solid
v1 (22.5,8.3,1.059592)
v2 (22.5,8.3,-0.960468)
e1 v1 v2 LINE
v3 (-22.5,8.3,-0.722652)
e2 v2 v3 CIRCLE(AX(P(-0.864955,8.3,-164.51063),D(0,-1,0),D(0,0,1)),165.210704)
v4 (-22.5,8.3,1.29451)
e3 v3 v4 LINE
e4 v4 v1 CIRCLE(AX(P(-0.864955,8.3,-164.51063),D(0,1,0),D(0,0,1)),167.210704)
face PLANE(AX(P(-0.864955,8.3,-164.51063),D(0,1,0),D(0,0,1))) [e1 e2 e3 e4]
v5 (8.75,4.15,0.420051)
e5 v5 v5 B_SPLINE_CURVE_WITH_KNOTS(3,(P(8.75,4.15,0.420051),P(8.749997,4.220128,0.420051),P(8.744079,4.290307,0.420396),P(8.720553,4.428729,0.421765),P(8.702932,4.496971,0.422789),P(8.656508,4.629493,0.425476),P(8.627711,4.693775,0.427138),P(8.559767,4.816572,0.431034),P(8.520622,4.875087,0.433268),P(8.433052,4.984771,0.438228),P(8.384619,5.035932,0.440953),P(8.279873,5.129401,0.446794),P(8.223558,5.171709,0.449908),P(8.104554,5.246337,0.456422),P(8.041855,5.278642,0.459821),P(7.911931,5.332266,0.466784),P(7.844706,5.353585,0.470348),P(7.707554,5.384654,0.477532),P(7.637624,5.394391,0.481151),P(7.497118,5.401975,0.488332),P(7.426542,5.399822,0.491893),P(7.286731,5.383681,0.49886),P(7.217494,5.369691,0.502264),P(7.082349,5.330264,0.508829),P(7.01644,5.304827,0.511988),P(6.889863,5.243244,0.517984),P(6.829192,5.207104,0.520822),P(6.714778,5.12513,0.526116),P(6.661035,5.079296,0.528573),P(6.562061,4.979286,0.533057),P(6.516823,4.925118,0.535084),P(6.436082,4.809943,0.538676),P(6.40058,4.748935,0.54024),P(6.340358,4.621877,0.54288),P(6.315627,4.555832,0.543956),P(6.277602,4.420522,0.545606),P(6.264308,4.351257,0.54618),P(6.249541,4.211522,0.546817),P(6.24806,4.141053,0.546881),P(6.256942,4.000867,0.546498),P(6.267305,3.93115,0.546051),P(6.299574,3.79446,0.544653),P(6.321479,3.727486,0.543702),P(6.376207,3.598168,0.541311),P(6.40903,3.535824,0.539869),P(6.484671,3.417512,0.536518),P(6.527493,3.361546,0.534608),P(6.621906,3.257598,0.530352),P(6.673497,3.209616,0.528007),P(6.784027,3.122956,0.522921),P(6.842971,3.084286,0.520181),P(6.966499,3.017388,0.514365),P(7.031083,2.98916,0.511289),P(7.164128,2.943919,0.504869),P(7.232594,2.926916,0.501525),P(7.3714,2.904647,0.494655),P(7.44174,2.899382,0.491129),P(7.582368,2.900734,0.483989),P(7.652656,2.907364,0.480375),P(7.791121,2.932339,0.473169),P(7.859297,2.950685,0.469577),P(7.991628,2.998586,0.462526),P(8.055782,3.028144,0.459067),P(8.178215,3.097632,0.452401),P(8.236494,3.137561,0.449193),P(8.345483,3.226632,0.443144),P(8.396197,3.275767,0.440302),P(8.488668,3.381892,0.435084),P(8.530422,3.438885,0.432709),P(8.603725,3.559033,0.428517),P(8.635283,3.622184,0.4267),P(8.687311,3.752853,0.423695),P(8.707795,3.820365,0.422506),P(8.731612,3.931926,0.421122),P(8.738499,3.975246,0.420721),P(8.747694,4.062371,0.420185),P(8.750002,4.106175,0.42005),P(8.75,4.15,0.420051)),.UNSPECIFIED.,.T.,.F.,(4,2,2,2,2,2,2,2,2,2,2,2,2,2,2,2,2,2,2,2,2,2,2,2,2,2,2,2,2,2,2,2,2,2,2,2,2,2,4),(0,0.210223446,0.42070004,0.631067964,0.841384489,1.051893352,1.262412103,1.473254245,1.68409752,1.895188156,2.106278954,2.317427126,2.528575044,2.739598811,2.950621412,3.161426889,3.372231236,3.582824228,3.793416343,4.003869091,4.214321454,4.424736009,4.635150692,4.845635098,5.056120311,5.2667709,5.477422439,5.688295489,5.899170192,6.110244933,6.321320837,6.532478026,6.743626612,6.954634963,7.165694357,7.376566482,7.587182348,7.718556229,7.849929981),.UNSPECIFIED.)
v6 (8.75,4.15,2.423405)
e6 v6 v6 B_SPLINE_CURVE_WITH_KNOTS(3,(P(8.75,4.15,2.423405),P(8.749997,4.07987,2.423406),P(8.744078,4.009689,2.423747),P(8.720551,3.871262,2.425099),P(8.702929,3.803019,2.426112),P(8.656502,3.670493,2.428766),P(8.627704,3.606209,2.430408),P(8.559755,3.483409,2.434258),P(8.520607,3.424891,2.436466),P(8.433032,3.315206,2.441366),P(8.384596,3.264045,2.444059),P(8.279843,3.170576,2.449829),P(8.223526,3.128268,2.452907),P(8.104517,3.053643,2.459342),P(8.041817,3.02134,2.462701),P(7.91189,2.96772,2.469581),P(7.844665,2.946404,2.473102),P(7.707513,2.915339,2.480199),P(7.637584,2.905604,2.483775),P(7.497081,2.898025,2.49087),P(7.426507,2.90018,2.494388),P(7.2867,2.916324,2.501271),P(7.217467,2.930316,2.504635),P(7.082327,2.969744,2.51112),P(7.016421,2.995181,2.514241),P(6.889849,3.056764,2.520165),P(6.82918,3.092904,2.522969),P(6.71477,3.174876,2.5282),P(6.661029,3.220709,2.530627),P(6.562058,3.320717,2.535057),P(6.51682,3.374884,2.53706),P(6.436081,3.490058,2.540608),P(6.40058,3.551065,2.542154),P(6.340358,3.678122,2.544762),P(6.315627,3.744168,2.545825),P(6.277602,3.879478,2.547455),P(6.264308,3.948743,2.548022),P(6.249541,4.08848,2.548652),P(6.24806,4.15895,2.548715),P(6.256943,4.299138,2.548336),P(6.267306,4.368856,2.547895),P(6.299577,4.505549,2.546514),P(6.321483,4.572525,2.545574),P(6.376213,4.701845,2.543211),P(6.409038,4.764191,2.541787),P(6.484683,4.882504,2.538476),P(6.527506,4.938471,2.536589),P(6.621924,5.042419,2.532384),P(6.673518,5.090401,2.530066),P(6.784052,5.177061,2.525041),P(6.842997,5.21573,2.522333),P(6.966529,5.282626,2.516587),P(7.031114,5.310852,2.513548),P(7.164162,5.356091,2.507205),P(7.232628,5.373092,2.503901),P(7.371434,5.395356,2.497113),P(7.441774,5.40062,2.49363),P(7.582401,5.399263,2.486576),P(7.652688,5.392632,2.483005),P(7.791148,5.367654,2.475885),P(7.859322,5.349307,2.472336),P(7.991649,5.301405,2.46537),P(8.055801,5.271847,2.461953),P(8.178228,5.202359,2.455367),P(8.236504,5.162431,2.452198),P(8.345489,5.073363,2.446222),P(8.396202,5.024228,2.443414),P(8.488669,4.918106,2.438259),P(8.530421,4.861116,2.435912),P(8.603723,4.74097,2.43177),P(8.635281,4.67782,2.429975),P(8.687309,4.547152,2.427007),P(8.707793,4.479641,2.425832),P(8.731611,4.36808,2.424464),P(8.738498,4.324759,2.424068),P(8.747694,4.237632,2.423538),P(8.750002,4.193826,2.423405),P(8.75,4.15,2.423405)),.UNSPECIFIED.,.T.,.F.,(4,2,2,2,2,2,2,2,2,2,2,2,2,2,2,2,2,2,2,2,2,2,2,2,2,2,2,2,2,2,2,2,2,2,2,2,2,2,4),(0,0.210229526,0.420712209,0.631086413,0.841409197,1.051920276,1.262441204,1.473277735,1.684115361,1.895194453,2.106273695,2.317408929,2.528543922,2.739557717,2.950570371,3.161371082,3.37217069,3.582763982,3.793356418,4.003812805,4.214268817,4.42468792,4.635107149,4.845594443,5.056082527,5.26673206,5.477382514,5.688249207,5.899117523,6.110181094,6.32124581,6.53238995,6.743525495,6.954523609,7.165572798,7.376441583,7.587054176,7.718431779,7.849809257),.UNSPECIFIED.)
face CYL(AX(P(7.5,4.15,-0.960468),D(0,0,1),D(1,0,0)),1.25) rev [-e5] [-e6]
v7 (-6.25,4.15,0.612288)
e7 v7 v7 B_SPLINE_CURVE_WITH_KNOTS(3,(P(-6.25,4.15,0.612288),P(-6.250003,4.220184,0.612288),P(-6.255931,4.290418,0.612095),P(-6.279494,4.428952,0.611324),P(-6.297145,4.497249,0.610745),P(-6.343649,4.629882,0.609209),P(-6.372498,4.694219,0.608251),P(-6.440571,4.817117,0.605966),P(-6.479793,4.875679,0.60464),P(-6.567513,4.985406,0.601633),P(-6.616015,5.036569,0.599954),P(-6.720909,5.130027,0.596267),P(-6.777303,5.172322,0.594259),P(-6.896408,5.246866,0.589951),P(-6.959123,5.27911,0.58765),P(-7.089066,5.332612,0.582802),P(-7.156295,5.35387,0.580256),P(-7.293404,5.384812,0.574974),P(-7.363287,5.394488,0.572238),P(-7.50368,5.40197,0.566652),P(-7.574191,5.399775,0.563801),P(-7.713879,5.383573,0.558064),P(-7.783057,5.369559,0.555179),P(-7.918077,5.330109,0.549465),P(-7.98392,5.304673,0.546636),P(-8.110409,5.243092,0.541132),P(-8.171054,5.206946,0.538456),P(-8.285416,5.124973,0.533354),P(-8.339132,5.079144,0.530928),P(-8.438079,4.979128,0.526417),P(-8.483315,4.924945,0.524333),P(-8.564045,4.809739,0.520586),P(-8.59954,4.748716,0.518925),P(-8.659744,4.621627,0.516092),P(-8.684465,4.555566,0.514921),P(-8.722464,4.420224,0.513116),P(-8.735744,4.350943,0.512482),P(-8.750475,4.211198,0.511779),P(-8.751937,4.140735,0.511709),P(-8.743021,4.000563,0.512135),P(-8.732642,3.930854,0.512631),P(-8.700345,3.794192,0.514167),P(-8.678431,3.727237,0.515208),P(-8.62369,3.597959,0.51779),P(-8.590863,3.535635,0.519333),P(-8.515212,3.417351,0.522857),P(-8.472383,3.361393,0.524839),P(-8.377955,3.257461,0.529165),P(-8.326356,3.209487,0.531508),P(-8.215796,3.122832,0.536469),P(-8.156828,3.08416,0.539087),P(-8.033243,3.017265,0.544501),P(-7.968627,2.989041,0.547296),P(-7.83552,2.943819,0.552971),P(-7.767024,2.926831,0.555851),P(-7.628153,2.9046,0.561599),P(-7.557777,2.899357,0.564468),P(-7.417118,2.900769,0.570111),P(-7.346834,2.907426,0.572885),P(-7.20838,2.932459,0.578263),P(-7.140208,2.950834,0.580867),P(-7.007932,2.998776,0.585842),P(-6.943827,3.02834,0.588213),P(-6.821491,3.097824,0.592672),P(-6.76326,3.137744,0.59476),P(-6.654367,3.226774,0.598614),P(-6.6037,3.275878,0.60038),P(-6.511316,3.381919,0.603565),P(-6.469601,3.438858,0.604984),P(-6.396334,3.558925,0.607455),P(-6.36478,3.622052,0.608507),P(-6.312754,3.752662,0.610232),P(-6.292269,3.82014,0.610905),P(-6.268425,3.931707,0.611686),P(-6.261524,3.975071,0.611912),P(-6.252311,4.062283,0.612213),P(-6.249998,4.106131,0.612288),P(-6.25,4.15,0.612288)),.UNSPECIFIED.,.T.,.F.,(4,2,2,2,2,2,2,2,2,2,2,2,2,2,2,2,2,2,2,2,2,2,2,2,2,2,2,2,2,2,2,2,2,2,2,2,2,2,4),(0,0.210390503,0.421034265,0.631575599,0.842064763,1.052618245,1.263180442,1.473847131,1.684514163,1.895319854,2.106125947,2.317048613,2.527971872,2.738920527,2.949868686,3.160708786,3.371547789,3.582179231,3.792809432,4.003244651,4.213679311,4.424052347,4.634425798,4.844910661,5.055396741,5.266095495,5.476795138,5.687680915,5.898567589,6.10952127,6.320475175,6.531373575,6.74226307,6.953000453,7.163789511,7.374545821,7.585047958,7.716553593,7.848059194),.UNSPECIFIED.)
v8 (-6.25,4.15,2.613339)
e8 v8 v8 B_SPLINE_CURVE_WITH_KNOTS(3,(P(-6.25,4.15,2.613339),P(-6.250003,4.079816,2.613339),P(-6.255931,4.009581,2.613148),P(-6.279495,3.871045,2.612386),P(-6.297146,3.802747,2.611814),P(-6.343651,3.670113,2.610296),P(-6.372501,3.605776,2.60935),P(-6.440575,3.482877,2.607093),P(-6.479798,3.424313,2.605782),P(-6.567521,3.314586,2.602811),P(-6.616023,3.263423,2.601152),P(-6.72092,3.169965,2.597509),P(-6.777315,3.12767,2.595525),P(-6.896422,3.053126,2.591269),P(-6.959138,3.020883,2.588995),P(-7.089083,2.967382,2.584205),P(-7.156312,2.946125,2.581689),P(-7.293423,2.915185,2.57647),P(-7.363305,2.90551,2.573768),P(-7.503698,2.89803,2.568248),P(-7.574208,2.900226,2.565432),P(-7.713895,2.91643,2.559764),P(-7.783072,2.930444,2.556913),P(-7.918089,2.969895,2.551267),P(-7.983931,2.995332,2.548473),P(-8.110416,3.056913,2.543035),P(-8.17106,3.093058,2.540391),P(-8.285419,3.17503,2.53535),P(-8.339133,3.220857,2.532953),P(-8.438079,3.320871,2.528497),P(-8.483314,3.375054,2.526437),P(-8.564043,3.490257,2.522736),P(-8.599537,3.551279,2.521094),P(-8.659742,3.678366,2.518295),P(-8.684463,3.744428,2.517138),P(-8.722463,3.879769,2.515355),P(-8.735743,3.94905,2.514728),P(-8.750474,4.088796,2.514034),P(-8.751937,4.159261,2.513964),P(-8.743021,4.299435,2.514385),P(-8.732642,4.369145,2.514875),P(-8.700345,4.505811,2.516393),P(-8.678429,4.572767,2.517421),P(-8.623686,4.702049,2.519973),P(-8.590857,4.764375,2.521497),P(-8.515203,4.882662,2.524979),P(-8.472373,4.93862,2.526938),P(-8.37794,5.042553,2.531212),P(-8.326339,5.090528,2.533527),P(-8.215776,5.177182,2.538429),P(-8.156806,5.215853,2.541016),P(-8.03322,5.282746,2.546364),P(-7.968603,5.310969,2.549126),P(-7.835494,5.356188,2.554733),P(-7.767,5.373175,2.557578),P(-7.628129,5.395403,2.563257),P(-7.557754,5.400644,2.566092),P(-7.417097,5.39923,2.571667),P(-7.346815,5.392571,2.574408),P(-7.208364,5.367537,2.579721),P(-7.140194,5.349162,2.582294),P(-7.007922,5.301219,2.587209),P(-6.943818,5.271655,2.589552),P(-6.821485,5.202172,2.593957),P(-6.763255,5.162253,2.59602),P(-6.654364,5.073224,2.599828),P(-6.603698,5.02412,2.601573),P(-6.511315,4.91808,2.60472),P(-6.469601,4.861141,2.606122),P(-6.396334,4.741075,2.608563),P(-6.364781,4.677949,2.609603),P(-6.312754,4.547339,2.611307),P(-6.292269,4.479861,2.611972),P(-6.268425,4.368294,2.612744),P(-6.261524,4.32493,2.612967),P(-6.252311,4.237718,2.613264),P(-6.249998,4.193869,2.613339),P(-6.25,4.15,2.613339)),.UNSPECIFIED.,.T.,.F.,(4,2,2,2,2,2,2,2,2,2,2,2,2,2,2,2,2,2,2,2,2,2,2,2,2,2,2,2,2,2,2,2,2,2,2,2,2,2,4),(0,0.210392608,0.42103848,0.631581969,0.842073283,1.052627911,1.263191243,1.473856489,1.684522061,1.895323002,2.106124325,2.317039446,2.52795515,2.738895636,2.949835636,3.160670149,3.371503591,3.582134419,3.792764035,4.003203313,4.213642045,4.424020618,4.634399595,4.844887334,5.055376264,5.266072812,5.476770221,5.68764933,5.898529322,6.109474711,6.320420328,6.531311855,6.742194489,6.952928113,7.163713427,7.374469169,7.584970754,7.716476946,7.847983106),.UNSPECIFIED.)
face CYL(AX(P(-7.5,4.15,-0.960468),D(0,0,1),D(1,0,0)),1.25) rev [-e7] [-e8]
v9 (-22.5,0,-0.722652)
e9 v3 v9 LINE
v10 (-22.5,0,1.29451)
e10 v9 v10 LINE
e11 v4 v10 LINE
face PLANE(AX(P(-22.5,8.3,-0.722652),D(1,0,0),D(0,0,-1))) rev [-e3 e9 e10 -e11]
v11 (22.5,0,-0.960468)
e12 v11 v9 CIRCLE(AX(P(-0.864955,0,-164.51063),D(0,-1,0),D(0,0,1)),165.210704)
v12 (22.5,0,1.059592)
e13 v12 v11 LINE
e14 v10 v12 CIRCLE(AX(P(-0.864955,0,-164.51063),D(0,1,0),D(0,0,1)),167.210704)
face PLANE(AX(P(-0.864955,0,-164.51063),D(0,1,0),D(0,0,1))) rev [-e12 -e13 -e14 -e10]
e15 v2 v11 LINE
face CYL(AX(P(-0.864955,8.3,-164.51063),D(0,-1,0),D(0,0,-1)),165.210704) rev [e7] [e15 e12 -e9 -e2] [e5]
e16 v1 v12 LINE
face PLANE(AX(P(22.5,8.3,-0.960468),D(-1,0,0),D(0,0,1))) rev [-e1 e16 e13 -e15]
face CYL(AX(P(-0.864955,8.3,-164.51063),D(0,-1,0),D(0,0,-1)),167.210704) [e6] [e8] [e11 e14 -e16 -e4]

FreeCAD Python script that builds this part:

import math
import FreeCAD as App
import Part
import Sketcher

doc = App.newDocument("Part")
body = doc.addObject("PartDesign::Body", "Body")

# Sketch on XZ plane
sketch1 = body.newObject("Sketcher::SketchObject", "Sketch")
sketch1.AttachmentSupport = (doc.getObject("XZ_Plane"), [""])
sketch1.MapMode = "FlatFace"
sketch1.addGeometry([
    Part.LineSegment(App.Vector(22.5, 1.1, 0), App.Vector(22.5, -1, 0)),
    Part.ArcOfCircle(Part.Circle(App.Vector(-0.9, -164.5, 0), App.Vector(0, 0, 1), 165.2), math.radians(81.87), math.radians(97.52)),
    Part.LineSegment(App.Vector(-22.5, -0.7, 0), App.Vector(-22.5, 1.3, 0)),
    Part.ArcOfCircle(Part.Circle(App.Vector(-0.9, -164.5, 0), App.Vector(0, 0, 1), 167.2), math.radians(81.97), math.radians(97.43)),
], False)
sketch1.addConstraint([
    Sketcher.Constraint("Coincident", 0, 2, 1, 1),
    Sketcher.Constraint("Coincident", 1, 2, 2, 1),
    Sketcher.Constraint("Coincident", 2, 2, 3, 2),
    Sketcher.Constraint("Coincident", 3, 1, 0, 1),
    Sketcher.Constraint("Vertical", 0),
    Sketcher.Constraint("Vertical", 2),
    Sketcher.Constraint("Coincident", 3, 3, 1, 3),
    Sketcher.Constraint("DistanceX", 1, 2, 0, 2, 45.0),
    Sketcher.Constraint("DistanceX", -1, 1, 0, 2, 22.5),
    Sketcher.Constraint("Radius", 1, 165.210704),
    Sketcher.Constraint("Radius", 3, 167.210704),
    Sketcher.Constraint("DistanceY", 1, 3, -1, 1, 164.51063),
    Sketcher.Constraint("DistanceY", -1, 1, 2, 2, 1.29451),
])
pad1 = body.newObject("PartDesign::Pad", "Pad")
pad1.Profile = sketch1
pad1.Length = 8.3
pad1.Reversed = True

# Sketch on XY plane
sketch2 = body.newObject("Sketcher::SketchObject", "Sketch001")
sketch2.AttachmentSupport = (doc.getObject("XY_Plane"), [""])
sketch2.MapMode = "FlatFace"
sketch2.addGeometry([
    Part.Circle(App.Vector(7.5, 4.2, 0), App.Vector(0, 0, 1), 1.2),
    Part.Circle(App.Vector(-7.5, 4.2, 0), App.Vector(0, 0, 1), 1.2),
], False)
sketch2.addConstraint([
    Sketcher.Constraint("Equal", 0, 1),
    Sketcher.Constraint("Symmetric", 0, 3, 1, 3, -2),
    Sketcher.Constraint("Diameter", 0, 2.5),
    Sketcher.Constraint("DistanceX", 1, 3, 0, 3, 15.0),
    Sketcher.Constraint("DistanceY", -1, 1, 0, 3, 4.15),
])
pocket1 = body.newObject("PartDesign::Pocket", "Pocket")
pocket1.Profile = sketch2
pocket1.Type = "ThroughAll"
pocket1.Midplane = True

doc.recompute()
